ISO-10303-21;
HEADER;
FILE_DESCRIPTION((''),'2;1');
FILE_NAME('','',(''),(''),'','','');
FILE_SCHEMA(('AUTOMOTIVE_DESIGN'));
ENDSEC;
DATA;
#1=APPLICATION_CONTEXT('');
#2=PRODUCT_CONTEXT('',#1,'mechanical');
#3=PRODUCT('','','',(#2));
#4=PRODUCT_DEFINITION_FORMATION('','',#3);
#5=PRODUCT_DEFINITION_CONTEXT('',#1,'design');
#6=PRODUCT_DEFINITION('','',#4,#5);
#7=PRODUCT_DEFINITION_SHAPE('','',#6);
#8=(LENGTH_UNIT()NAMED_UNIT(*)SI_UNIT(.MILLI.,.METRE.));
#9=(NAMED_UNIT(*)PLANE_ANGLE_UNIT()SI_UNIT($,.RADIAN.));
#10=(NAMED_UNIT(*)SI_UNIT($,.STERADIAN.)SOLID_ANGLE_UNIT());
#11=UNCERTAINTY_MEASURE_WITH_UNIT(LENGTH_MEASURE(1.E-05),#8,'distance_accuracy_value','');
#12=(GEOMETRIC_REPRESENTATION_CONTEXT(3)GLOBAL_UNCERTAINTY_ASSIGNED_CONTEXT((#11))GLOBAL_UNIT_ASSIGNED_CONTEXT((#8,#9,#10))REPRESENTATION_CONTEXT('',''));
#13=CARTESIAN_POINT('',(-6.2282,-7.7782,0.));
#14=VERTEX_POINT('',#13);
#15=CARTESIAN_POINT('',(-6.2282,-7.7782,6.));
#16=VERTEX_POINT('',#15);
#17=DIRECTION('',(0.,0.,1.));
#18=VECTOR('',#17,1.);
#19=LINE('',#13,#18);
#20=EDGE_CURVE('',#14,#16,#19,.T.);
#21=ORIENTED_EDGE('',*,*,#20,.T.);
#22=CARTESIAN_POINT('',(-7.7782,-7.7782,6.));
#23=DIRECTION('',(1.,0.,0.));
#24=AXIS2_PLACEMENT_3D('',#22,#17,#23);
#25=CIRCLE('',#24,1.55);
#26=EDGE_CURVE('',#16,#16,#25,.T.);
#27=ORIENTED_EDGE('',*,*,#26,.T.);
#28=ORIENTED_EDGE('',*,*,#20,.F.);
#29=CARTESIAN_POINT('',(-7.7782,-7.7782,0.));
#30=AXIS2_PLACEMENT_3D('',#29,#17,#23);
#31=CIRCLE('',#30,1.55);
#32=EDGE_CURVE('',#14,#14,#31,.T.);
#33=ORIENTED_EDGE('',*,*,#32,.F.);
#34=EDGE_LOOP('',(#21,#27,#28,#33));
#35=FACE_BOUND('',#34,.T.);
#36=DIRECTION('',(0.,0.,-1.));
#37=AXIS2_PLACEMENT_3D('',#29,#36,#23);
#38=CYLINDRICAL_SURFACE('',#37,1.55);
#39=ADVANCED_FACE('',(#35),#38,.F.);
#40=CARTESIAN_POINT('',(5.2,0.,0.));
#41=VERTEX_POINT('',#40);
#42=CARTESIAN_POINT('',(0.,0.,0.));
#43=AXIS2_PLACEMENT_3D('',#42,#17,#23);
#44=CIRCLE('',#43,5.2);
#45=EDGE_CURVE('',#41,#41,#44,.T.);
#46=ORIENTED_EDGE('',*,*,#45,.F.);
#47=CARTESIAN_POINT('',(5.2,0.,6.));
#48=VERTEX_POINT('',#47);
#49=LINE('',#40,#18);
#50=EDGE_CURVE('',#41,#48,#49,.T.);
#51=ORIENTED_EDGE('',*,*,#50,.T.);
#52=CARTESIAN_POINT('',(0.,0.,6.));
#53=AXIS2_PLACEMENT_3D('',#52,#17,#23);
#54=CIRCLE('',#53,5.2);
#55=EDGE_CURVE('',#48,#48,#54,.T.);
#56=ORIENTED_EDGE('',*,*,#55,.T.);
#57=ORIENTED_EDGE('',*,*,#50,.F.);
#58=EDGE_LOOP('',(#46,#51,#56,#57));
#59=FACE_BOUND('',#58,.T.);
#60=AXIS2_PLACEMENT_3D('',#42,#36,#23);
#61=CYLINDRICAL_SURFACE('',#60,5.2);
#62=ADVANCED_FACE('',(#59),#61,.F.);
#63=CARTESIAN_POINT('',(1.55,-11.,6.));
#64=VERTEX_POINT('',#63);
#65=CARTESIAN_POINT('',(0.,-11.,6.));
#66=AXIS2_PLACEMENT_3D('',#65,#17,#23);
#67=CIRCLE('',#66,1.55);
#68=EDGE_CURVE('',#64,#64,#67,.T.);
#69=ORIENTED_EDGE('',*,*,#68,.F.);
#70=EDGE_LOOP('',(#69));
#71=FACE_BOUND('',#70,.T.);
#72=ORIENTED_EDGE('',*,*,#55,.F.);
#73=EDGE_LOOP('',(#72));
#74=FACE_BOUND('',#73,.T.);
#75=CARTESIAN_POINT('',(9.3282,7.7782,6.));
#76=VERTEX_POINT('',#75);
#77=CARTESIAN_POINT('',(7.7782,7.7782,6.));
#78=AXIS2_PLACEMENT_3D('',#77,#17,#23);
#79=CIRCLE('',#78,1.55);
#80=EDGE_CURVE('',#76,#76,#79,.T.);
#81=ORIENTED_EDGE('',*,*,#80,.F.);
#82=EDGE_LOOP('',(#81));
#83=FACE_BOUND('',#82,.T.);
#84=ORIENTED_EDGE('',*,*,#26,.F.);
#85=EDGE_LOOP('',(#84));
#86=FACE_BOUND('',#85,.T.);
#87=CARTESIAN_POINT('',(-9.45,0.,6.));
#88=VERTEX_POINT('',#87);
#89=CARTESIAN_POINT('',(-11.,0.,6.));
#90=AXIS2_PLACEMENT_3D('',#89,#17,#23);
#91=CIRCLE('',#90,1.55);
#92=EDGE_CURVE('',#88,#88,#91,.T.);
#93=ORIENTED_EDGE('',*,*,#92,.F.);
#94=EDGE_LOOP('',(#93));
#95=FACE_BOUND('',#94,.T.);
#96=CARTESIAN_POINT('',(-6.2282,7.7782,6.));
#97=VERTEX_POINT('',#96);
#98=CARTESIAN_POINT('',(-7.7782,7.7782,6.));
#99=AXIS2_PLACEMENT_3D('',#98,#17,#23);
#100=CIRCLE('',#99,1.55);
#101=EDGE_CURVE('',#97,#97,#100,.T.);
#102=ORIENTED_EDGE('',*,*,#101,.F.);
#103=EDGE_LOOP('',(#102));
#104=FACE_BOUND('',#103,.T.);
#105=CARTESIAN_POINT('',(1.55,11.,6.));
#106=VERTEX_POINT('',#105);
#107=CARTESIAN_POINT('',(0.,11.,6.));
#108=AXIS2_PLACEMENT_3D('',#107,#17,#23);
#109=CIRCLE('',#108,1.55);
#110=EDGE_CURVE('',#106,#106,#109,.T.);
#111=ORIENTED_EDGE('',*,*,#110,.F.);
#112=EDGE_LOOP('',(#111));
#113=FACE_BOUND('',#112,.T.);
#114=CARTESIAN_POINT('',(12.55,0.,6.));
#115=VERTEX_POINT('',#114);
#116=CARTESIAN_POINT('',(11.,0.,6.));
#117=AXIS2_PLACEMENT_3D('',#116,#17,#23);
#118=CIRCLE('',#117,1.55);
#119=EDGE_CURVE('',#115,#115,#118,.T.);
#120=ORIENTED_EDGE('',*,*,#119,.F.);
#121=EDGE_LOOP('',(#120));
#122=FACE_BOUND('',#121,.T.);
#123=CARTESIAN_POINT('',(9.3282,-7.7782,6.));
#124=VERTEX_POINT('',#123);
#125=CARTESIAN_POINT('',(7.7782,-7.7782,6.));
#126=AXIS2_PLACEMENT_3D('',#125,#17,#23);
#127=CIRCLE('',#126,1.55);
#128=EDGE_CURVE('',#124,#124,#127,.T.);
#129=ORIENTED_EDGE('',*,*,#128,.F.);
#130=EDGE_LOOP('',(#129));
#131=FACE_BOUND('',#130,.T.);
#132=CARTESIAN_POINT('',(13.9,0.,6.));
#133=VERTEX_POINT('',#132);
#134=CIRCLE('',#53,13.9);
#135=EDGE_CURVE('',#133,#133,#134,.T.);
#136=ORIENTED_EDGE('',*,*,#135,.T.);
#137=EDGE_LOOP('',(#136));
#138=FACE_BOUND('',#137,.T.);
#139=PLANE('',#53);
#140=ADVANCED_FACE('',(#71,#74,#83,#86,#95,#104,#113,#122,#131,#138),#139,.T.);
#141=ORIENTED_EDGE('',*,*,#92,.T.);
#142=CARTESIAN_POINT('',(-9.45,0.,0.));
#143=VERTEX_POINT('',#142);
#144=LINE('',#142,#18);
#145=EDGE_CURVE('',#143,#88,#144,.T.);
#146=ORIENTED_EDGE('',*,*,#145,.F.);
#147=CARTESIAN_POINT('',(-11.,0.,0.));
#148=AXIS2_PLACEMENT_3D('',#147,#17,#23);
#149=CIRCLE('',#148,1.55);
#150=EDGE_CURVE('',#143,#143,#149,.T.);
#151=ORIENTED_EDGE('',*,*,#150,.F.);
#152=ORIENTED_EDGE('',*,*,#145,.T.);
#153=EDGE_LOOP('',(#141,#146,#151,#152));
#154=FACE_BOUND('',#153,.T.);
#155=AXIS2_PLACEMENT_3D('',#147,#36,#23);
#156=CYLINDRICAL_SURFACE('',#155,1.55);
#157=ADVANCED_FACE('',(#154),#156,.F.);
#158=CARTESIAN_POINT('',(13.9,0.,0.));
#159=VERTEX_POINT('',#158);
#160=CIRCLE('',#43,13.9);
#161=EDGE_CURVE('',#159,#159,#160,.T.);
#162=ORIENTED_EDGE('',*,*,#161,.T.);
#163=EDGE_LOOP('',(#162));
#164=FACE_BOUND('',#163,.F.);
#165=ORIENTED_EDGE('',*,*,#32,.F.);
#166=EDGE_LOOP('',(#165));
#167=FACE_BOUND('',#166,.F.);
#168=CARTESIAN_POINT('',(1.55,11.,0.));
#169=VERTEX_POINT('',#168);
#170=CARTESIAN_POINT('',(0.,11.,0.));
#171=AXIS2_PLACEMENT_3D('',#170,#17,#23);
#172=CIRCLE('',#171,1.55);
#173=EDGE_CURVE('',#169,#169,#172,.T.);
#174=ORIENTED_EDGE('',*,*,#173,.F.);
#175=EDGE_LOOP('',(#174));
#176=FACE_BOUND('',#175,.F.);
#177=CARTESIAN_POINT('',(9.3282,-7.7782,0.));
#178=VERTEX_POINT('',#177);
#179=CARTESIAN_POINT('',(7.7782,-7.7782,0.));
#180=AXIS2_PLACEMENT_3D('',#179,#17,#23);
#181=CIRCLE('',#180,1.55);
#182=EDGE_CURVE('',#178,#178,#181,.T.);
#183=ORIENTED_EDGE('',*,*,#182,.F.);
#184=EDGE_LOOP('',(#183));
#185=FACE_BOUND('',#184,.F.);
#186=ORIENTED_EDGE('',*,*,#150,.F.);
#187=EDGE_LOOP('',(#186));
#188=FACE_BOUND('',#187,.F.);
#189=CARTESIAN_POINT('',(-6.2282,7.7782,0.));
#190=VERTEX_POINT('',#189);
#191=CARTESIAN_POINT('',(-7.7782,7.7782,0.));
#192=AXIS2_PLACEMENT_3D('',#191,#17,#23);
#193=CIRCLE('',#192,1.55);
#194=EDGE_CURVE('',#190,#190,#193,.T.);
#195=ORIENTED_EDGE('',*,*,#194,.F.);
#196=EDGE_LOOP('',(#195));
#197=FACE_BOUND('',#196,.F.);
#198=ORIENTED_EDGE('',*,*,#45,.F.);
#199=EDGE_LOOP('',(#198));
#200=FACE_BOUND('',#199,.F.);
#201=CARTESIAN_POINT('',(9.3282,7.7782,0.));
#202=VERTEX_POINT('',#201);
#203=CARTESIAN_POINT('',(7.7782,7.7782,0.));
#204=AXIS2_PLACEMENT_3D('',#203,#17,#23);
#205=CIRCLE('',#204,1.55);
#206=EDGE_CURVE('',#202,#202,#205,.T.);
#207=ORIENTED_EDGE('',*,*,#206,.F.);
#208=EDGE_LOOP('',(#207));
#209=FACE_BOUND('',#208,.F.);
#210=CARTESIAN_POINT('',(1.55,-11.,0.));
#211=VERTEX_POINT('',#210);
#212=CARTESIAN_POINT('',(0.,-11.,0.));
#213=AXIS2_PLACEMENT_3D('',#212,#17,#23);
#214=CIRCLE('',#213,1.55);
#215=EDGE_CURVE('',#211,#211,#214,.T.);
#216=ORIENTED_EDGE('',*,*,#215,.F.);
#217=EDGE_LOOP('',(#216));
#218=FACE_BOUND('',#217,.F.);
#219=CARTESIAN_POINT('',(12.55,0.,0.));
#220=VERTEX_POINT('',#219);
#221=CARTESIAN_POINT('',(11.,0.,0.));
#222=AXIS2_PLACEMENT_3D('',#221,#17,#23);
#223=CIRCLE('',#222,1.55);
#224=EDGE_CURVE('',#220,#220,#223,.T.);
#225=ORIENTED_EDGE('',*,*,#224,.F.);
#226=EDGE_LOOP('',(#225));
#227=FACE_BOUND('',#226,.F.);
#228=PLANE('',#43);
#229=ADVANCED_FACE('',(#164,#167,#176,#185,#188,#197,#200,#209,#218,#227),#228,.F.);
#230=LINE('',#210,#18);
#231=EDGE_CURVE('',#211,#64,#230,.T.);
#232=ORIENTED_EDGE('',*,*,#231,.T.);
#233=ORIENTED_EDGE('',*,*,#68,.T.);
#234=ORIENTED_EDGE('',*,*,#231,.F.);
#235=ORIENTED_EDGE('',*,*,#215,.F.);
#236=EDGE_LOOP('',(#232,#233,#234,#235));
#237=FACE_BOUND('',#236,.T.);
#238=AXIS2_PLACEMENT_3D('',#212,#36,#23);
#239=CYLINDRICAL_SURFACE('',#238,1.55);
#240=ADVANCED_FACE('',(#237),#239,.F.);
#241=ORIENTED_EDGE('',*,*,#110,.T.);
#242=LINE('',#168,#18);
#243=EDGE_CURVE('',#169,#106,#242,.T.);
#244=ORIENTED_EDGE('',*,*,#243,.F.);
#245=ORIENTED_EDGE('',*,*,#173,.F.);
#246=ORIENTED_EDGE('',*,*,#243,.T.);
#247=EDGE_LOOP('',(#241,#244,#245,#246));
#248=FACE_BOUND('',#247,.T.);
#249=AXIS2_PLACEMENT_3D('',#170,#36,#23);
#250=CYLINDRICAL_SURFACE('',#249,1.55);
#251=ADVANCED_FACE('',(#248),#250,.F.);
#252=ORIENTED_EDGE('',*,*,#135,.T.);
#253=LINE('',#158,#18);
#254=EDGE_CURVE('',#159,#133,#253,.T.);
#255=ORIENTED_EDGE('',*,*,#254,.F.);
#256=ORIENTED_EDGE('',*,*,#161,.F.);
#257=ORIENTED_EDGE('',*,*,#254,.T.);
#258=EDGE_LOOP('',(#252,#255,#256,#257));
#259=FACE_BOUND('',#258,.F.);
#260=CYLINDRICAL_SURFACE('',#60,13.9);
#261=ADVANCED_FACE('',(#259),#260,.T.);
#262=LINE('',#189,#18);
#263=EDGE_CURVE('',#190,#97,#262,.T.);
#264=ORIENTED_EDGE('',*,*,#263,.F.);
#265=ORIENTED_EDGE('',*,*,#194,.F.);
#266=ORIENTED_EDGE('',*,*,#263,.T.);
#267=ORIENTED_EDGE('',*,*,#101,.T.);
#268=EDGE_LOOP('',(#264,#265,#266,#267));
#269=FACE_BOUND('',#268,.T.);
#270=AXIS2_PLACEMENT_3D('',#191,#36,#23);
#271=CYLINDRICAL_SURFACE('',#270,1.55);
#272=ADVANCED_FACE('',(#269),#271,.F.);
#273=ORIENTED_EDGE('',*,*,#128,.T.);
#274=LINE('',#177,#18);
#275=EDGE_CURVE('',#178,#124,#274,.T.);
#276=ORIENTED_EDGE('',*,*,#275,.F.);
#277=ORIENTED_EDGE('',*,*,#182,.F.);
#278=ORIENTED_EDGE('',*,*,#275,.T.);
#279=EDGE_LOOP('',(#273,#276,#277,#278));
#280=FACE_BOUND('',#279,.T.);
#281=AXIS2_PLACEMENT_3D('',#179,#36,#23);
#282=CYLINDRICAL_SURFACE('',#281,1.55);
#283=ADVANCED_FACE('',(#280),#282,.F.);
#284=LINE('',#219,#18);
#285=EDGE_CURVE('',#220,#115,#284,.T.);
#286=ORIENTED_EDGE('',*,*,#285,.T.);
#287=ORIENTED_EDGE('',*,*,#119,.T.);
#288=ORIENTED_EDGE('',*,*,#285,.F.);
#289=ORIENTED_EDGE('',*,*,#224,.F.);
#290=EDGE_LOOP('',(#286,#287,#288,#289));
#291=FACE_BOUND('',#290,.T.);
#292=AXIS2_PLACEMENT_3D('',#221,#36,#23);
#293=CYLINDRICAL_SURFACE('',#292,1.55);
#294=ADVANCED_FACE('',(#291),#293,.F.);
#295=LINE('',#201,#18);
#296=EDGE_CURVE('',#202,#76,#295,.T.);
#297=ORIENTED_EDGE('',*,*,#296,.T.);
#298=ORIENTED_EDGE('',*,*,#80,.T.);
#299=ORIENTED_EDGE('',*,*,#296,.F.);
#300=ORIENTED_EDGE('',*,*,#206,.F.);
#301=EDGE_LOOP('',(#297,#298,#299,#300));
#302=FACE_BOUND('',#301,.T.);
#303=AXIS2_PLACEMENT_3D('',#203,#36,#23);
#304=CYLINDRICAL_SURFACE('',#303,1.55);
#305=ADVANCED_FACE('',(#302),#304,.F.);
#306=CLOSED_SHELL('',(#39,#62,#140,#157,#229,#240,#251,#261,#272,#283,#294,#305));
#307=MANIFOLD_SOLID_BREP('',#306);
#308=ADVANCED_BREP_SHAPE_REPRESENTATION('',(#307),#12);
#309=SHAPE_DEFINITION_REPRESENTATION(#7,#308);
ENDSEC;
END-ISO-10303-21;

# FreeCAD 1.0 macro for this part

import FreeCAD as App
import Part
import Sketcher

doc = App.newDocument("Part")
body = doc.addObject("PartDesign::Body", "Body")

# Sketch on XY plane
sketch1 = body.newObject("Sketcher::SketchObject", "Sketch")
sketch1.AttachmentSupport = (doc.getObject("XY_Plane"), [""])
sketch1.MapMode = "FlatFace"
sketch1.addGeometry([
    Part.Circle(App.Vector(0, 0, 0), App.Vector(0, 0, 1), 13.9),  # 0
    Part.Circle(App.Vector(-7.8, -7.8, 0), App.Vector(0, 0, 1), 1.6),  # 1
    Part.Circle(App.Vector(0, -11, 0), App.Vector(0, 0, 1), 1.6),  # 2
    Part.Circle(App.Vector(7.8, -7.8, 0), App.Vector(0, 0, 1), 1.6),  # 3
    Part.Circle(App.Vector(-11, 0, 0), App.Vector(0, 0, 1), 1.6),  # 4
    Part.Circle(App.Vector(-7.8, 7.8, 0), App.Vector(0, 0, 1), 1.6),  # 5
    Part.Circle(App.Vector(0, 0, 0), App.Vector(0, 0, 1), 5.2),  # 6
    Part.Circle(App.Vector(11, 0, 0), App.Vector(0, 0, 1), 1.6),  # 7
    Part.Circle(App.Vector(0, 11, 0), App.Vector(0, 0, 1), 1.6),  # 8
    Part.Circle(App.Vector(7.8, 7.8, 0), App.Vector(0, 0, 1), 1.6),  # 9
], False)
sketch1.addConstraint([
    Sketcher.Constraint("Coincident", 0, 3, -1, 1),
    Sketcher.Constraint("Coincident", 6, 3, -1, 1),
    Sketcher.Constraint("Equal", 1, 2),
    Sketcher.Constraint("Equal", 2, 3),
    Sketcher.Constraint("Equal", 3, 4),
    Sketcher.Constraint("Equal", 4, 5),
    Sketcher.Constraint("Equal", 5, 7),
    Sketcher.Constraint("Equal", 7, 8),
    Sketcher.Constraint("Equal", 8, 9),
    Sketcher.Constraint("Symmetric", 3, 3, 5, 3, -1, 1),
    Sketcher.Constraint("Symmetric", 4, 3, 7, 3, -1, 1),
    Sketcher.Constraint("Symmetric", 2, 3, 8, 3, -1, 1),
    Sketcher.Constraint("Symmetric", 1, 3, 9, 3, -1, 1),
    Sketcher.Constraint("Symmetric", 1, 3, 3, 3, -2),
    Sketcher.Constraint("PointOnObject", 2, 3, -2),
    Sketcher.Constraint("PointOnObject", 4, 3, -1),
    Sketcher.Constraint("Diameter", 0, 27.8),
    Sketcher.Constraint("Diameter", 1, 3.1),
    Sketcher.Constraint("Diameter", 6, 10.4),
    Sketcher.Constraint("DistanceY", 2, 3, -1, 1, 11.0),
    Sketcher.Constraint("DistanceX", 4, 3, -1, 1, 11.0),
    Sketcher.Constraint("DistanceX", 1, 3, -1, 1, 7.7782),
    Sketcher.Constraint("DistanceY", 1, 3, -1, 1, 7.7782),
])
pad1 = body.newObject("PartDesign::Pad", "Pad")
pad1.Profile = sketch1
pad1.Length = 6

doc.recompute()
